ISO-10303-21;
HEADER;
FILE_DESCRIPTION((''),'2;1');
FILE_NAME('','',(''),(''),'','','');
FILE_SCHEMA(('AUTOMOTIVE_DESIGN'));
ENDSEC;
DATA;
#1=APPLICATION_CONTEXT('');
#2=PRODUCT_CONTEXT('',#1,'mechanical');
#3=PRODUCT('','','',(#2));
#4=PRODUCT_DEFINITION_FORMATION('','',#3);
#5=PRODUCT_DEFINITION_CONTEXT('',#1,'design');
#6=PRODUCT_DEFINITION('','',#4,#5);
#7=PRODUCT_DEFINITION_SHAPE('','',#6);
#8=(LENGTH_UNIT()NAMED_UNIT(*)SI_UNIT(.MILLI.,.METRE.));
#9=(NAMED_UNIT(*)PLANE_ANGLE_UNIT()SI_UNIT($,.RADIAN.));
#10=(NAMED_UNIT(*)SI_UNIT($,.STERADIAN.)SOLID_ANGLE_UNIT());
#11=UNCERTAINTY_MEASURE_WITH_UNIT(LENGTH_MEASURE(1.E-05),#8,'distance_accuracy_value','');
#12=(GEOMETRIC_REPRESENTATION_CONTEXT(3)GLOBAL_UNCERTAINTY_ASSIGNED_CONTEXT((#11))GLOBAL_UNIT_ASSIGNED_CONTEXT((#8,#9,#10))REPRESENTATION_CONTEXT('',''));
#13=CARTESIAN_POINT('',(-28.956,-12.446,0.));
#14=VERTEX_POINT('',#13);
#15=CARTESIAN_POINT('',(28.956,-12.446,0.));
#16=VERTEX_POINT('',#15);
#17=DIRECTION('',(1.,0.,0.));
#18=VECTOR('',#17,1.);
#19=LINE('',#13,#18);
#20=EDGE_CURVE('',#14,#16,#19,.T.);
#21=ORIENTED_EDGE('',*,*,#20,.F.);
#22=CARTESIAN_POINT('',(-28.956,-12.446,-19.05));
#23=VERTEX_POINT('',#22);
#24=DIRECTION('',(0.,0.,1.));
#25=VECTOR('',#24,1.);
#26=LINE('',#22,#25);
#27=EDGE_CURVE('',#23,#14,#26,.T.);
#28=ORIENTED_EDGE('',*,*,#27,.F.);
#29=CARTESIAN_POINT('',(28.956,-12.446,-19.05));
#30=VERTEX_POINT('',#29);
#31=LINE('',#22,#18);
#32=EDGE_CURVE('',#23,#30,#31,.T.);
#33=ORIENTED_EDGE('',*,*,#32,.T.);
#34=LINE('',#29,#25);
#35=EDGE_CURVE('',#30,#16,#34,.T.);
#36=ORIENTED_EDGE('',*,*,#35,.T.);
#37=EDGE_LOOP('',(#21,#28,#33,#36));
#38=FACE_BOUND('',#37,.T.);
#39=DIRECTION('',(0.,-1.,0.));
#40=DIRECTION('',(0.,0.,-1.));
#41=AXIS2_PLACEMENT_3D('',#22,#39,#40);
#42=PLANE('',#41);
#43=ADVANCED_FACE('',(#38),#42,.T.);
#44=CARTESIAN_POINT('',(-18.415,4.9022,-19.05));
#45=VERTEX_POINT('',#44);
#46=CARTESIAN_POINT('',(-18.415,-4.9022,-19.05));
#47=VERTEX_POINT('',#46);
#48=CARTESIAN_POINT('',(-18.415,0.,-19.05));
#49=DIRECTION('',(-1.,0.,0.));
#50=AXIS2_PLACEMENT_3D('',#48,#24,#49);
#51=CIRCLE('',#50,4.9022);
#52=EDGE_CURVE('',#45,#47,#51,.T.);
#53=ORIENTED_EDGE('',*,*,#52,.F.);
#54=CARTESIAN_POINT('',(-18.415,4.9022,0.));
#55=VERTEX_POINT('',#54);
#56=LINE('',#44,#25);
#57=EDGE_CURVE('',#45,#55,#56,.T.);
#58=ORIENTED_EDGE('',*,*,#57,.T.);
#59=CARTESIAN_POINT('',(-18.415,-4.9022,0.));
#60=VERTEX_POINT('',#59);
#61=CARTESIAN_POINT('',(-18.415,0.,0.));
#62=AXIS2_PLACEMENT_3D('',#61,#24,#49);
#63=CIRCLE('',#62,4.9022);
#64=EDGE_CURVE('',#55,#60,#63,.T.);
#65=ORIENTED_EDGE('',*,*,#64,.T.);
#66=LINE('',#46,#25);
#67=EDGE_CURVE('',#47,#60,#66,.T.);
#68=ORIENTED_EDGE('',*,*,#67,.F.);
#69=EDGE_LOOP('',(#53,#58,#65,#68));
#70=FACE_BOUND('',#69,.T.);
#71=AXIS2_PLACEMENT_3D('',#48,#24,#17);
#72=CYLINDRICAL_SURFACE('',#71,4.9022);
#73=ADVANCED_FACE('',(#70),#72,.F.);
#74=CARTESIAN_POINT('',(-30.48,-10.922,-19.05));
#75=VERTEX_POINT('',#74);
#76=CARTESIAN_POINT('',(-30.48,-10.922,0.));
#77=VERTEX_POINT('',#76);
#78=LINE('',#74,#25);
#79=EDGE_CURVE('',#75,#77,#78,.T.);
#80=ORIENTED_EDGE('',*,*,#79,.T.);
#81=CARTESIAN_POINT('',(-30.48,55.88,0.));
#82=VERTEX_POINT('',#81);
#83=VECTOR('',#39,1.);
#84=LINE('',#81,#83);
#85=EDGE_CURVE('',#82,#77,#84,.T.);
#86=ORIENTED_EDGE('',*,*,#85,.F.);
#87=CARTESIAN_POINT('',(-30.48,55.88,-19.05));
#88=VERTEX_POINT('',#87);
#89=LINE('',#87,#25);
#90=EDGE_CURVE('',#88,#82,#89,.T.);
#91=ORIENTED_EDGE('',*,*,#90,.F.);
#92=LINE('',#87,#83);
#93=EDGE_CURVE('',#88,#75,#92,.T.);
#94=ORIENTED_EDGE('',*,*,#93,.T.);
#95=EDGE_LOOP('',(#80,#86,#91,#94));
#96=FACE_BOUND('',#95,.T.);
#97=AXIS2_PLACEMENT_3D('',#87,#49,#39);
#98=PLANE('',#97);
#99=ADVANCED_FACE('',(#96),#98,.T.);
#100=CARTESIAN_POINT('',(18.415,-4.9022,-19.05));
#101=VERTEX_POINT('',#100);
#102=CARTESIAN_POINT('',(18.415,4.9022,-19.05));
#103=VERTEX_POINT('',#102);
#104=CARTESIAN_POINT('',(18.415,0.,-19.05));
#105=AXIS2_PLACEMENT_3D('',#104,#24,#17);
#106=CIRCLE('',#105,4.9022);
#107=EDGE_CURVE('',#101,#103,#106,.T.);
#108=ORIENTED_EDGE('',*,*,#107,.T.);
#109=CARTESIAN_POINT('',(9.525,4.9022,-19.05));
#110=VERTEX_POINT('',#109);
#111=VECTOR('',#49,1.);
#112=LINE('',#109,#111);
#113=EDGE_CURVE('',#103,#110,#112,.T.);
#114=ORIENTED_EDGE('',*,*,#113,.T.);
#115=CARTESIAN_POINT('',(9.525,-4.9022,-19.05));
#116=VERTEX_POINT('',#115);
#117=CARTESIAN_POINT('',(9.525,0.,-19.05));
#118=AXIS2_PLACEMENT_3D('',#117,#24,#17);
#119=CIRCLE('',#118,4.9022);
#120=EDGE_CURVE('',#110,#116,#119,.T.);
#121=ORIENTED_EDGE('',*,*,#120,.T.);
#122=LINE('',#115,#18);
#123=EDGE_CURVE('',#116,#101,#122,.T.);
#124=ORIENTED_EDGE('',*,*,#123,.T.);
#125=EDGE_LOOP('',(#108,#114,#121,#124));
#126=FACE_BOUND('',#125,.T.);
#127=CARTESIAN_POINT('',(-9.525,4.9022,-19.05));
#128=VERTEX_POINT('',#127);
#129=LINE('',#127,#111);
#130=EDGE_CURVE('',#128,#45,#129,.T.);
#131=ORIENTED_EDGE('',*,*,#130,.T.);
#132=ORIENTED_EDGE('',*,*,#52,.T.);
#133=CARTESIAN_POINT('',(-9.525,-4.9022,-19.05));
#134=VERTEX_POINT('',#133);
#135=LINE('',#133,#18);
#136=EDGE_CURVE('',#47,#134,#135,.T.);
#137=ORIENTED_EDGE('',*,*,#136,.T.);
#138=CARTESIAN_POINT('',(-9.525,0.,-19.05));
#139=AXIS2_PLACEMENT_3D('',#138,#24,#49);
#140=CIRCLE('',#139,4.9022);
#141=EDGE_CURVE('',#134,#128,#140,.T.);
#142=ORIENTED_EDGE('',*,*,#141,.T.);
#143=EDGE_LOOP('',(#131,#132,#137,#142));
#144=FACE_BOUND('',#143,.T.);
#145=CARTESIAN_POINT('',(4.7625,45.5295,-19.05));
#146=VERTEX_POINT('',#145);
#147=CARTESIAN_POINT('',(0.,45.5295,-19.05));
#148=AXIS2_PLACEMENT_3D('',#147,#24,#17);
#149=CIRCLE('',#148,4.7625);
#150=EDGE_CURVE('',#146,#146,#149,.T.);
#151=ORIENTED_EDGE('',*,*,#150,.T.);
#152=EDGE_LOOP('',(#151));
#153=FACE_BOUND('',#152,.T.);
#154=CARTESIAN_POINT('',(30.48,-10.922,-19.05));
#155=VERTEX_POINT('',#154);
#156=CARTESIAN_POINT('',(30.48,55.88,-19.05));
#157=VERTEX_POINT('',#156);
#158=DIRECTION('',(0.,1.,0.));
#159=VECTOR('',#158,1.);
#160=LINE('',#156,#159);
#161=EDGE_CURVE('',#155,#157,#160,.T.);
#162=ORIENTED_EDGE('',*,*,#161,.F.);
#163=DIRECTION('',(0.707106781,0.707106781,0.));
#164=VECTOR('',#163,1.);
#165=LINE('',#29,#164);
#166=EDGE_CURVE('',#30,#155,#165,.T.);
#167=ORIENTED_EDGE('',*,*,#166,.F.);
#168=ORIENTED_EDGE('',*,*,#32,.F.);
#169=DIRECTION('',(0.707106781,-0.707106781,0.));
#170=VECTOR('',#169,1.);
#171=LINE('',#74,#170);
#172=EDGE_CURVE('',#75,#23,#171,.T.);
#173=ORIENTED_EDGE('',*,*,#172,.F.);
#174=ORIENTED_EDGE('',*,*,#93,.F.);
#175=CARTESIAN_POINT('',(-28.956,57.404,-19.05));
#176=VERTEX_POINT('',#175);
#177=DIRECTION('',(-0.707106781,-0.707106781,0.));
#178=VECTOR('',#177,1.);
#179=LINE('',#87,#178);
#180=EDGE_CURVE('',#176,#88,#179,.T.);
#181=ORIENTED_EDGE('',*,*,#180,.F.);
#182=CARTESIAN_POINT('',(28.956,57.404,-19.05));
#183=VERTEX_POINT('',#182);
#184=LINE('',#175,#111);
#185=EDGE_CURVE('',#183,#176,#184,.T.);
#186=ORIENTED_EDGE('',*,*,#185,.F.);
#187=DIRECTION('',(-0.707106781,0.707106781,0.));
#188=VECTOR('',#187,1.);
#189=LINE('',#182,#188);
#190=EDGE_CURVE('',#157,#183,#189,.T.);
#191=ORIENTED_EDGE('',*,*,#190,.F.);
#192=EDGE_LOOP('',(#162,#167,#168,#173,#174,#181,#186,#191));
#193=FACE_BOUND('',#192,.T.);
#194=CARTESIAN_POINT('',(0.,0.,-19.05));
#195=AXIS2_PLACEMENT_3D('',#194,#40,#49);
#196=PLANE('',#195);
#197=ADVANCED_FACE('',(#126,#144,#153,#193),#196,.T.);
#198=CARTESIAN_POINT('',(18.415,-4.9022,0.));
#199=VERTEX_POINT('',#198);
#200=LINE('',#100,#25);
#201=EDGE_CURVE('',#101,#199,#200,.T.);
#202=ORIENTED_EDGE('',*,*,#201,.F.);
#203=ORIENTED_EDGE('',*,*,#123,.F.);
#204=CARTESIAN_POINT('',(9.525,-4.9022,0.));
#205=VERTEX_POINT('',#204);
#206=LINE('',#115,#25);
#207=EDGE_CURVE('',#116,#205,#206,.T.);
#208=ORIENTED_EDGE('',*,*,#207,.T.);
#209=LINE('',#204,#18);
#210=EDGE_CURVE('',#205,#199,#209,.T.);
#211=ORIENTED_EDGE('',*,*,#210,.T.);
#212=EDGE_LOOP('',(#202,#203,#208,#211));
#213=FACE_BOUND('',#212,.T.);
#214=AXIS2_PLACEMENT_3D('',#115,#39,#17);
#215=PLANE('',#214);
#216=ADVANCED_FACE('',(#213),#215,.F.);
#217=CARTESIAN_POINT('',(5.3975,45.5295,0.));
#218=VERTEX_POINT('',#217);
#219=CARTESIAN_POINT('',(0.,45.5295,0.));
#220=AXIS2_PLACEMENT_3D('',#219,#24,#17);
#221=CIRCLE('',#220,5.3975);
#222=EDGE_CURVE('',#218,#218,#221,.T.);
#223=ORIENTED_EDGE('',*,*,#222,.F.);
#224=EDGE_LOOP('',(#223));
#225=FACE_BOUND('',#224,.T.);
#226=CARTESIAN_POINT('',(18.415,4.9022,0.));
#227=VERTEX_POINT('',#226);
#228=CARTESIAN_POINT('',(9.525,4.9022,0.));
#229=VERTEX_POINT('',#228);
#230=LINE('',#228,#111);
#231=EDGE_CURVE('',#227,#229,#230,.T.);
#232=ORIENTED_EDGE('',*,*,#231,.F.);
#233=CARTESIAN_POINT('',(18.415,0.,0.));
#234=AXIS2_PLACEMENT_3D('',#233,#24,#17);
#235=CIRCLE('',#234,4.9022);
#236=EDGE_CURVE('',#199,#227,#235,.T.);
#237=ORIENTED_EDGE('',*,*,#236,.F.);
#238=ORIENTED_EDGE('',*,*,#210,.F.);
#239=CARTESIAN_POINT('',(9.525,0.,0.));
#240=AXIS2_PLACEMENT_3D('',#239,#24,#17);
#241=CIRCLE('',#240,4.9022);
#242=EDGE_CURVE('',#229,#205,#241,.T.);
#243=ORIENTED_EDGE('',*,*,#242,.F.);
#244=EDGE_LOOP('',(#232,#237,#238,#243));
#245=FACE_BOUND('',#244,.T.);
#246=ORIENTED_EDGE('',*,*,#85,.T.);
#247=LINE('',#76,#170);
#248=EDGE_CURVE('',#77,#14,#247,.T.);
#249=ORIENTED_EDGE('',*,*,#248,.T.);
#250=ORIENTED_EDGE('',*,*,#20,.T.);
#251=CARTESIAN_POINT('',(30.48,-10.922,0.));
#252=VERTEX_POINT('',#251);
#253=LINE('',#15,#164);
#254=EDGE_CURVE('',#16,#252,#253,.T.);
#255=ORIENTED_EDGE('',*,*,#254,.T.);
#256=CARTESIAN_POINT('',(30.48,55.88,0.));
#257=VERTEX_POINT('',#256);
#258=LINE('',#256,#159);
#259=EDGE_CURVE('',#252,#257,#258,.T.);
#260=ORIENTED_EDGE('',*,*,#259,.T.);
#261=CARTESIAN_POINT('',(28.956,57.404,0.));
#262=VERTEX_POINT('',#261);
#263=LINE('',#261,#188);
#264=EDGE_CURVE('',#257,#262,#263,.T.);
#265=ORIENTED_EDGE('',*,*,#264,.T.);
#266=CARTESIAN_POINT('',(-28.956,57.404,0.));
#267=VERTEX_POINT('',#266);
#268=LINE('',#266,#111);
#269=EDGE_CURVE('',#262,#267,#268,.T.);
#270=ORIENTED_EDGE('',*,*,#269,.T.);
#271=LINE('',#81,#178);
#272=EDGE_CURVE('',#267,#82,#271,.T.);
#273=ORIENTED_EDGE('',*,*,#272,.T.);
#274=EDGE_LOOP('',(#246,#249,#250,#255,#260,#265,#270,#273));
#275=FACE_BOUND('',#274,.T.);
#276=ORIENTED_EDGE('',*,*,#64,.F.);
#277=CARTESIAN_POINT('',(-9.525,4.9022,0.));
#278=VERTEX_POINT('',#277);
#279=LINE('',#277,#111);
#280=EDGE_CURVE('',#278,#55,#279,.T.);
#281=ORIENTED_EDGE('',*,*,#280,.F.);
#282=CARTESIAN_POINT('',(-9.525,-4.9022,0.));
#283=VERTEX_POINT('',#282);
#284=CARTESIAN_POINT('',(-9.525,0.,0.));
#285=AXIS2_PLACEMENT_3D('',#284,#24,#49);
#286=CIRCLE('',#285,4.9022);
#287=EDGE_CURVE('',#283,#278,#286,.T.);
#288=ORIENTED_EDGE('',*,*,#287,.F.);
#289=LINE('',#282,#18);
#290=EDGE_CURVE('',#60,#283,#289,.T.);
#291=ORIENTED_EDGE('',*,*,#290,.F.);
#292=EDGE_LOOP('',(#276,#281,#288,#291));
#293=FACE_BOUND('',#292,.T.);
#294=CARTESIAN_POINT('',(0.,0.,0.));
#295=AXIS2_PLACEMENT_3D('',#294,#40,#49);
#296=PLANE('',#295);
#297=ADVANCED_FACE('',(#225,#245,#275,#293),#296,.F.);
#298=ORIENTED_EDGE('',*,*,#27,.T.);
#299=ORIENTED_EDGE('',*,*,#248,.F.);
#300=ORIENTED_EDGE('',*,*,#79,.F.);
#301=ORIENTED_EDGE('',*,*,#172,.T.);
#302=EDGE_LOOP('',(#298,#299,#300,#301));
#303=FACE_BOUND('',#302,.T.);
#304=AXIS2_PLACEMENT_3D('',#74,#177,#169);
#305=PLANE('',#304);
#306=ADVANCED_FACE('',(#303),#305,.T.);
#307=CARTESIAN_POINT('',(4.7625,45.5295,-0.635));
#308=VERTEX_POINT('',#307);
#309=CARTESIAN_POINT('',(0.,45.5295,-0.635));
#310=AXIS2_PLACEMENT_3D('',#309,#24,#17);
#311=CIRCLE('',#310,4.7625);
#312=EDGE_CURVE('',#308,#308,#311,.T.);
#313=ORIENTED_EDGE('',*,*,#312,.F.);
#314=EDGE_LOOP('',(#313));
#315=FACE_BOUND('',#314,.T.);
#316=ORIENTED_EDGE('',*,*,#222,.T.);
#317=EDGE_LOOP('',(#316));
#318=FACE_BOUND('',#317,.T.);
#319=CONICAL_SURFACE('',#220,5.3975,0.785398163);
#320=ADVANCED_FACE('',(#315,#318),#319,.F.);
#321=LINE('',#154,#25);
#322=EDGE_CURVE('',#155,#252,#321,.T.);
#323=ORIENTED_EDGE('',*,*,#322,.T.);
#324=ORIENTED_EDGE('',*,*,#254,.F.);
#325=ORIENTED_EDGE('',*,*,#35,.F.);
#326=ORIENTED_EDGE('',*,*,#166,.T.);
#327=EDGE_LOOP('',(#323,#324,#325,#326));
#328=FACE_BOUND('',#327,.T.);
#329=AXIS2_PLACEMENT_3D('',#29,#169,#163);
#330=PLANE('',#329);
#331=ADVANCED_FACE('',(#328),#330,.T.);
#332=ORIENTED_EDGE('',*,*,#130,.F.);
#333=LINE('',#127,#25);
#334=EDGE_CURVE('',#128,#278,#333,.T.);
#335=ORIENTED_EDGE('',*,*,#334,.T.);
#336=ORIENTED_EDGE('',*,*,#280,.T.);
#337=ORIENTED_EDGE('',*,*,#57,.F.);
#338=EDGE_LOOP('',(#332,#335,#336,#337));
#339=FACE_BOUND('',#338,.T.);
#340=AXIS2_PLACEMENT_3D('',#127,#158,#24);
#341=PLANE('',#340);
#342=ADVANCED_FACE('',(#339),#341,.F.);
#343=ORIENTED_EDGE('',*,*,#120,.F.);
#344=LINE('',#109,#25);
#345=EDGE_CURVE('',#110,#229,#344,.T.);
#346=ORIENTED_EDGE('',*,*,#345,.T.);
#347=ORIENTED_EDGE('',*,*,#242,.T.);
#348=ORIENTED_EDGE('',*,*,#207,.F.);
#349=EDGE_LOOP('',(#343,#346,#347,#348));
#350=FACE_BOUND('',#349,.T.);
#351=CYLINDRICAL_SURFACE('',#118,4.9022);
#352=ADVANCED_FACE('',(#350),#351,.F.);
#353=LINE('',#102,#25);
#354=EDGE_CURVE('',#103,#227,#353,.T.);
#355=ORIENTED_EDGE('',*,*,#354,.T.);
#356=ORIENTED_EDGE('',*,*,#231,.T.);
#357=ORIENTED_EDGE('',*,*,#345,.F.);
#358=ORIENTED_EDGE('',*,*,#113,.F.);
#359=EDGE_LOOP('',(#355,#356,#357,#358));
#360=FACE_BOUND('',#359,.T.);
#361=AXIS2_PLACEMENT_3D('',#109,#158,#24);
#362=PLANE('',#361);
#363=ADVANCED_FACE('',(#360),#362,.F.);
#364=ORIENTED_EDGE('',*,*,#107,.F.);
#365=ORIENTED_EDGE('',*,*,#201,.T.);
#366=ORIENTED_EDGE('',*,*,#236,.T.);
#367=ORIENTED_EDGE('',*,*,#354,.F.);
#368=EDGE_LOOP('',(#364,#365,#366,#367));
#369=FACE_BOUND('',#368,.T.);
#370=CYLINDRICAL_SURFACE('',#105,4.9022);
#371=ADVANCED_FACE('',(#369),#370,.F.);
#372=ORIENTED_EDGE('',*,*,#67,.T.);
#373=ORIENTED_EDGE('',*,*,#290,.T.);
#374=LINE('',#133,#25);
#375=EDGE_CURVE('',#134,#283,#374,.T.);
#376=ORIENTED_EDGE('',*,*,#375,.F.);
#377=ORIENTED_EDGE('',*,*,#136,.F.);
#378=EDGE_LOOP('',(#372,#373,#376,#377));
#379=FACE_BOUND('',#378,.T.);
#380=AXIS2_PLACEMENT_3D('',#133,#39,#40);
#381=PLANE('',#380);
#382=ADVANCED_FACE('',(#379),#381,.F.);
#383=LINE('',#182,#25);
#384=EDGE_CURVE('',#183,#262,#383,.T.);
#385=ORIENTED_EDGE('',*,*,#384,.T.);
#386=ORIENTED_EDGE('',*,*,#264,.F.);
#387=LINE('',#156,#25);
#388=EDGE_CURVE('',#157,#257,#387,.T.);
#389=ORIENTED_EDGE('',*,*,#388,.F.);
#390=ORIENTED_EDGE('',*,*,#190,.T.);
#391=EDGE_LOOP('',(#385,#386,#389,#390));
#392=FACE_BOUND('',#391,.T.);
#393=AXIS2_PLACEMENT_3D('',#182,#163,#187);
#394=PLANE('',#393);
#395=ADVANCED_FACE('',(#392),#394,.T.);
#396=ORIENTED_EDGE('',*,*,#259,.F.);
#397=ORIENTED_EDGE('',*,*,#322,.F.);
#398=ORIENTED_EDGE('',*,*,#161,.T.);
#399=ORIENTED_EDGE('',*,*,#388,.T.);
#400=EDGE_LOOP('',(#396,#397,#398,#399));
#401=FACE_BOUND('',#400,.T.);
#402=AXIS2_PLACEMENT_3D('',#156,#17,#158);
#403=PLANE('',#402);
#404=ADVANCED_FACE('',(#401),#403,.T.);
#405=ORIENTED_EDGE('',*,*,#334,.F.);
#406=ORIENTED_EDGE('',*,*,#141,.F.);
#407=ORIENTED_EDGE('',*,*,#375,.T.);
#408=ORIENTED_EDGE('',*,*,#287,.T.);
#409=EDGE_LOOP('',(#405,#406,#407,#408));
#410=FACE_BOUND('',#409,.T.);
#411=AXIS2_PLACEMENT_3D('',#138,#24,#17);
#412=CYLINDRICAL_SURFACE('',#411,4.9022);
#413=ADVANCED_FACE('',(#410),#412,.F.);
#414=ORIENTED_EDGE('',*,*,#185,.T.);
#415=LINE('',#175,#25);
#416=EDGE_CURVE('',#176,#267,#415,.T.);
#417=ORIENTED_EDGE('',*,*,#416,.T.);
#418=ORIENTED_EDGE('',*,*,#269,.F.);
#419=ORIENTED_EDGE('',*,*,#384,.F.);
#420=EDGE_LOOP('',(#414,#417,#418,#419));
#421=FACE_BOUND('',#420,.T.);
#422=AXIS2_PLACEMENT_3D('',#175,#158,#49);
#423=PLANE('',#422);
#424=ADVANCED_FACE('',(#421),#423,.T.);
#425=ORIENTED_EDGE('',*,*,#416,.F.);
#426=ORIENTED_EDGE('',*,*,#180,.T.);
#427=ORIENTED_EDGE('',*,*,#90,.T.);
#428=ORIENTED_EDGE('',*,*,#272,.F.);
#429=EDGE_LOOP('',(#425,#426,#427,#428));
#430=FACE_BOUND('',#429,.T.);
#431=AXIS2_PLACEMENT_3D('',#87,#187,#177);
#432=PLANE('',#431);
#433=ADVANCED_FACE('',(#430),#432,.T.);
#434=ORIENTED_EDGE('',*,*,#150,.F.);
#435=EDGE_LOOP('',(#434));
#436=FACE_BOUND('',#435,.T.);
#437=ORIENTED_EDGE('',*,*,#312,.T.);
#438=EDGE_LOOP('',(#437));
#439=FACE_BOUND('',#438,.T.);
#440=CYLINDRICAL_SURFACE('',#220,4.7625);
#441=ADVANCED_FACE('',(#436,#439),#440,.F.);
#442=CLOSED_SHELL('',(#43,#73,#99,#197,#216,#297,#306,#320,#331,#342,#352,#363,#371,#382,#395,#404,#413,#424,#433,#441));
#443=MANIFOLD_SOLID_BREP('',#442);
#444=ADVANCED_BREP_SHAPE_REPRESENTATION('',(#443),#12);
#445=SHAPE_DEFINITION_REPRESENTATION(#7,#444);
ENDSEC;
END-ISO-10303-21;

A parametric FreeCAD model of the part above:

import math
import FreeCAD as App
import Part
import Sketcher
Q = App.Units.Quantity


def add_polygon(sketch, points):
    """Adds a closed chain of lines whose ends are joined by coincident constraints."""
    first, n = sketch.GeometryCount, len(points)
    for a, b in zip(points, points[1:] + points[:1]):
        sketch.addGeometry(Part.LineSegment(App.Vector(*a, 0), App.Vector(*b, 0)), False)
    for i in range(n):
        sketch.addConstraint(Sketcher.Constraint("Coincident", first + i, 2, first + (i + 1) % n, 1))

doc = App.newDocument("Part")
body = doc.addObject("PartDesign::Body", "Body")

sketch1 = body.newObject("Sketcher::SketchObject", "Sketch")
sketch1.AttachmentSupport = (doc.getObject("XY_Plane"), [""])
sketch1.MapMode = "FlatFace"
add_polygon(sketch1, [(29, 57.4), (-29, 57.4), (-30.5, 55.9), (-30.5, -10.9), (-29, -12.4), (29, -12.4), (30.5, -10.9), (30.5, 55.9)])
sketch1.addGeometry(Part.LineSegment(App.Vector(9.5, 4.9, 0), App.Vector(18.4, 4.9, 0)), False)
sketch1.addGeometry(Part.ArcOfCircle(Part.Circle(App.Vector(18.4, 0, 0), App.Vector(0, 0, 1), 4.9), math.radians(-90), math.radians(90)), False)
sketch1.addGeometry(Part.LineSegment(App.Vector(18.4, -4.9, 0), App.Vector(9.5, -4.9, 0)), False)
sketch1.addGeometry(Part.ArcOfCircle(Part.Circle(App.Vector(9.5, 0, 0), App.Vector(0, 0, 1), 4.9), math.radians(90), math.radians(270)), False)
sketch1.addGeometry(Part.ArcOfCircle(Part.Circle(App.Vector(-9.5, 0, 0), App.Vector(0, 0, 1), 4.9), math.radians(-90), math.radians(90)), False)
sketch1.addGeometry(Part.LineSegment(App.Vector(-9.5, -4.9, 0), App.Vector(-18.4, -4.9, 0)), False)
sketch1.addGeometry(Part.ArcOfCircle(Part.Circle(App.Vector(-18.4, 0, 0), App.Vector(0, 0, 1), 4.9), math.radians(90), math.radians(270)), False)
sketch1.addGeometry(Part.LineSegment(App.Vector(-18.4, 4.9, 0), App.Vector(-9.5, 4.9, 0)), False)
sketch1.addConstraint([
    Sketcher.Constraint("Tangent", 8, 2, 9, 2),
    Sketcher.Constraint("Tangent", 9, 1, 10, 1),
    Sketcher.Constraint("Tangent", 10, 2, 11, 2),
    Sketcher.Constraint("Tangent", 11, 1, 8, 1),
    Sketcher.Constraint("Tangent", 12, 1, 13, 1),
    Sketcher.Constraint("Tangent", 13, 2, 14, 2),
    Sketcher.Constraint("Tangent", 14, 1, 15, 1),
    Sketcher.Constraint("Tangent", 15, 2, 12, 2),
    Sketcher.Constraint("Horizontal", 0),
    Sketcher.Constraint("Vertical", 2),
    Sketcher.Constraint("Horizontal", 4),
    Sketcher.Constraint("Vertical", 6),
    Sketcher.Constraint("Horizontal", 8),
    Sketcher.Constraint("Horizontal", 10),
    Sketcher.Constraint("Horizontal", 13),
    Sketcher.Constraint("Horizontal", 15),
    Sketcher.Constraint("Equal", 11, 12),
    Sketcher.Constraint("Symmetric", 11, 3, 12, 3, -1, 1),
    Sketcher.Constraint("Symmetric", 9, 3, 14, 3, -2),
    Sketcher.Constraint("Symmetric", 2, 2, 5, 2, -2),
    Sketcher.Constraint("Perpendicular", 1, 3),
    Sketcher.Constraint("Perpendicular", 3, 5),
    Sketcher.Constraint("Perpendicular", 5, 7),
    Sketcher.Constraint("Horizontal", 1, 2, 6, 2),
    Sketcher.Constraint("Vertical", 0, 2, 3, 2),
    Sketcher.Constraint("Vertical", 4, 2, 7, 2),
    Sketcher.Constraint("Radius", 9, Q("0.193 in")),
    Sketcher.Constraint("DistanceX", 0, 2, 0, 1, Q("2.28 in")),
    Sketcher.Constraint("DistanceX", 8, 1, 8, 2, Q("0.35 in")),
    Sketcher.Constraint("DistanceY", 2, 2, 2, 1, Q("2.63 in")),
    Sketcher.Constraint("DistanceX", 1, 2, -1, 1, Q("1.2 in")),
    Sketcher.Constraint("DistanceY", -1, 1, 1, 2, Q("2.2 in")),
    Sketcher.Constraint("DistanceX", 12, 3, 9, 3, Q("1.1 in")),
])
pad1 = body.newObject("PartDesign::Pad", "Pad")
pad1.Profile = sketch1
pad1.Length = Q("0.75 in")
pad1.Reversed = True

sketch2 = body.newObject("Sketcher::SketchObject", "Sketch001")
sketch2.AttachmentSupport = (doc.getObject("XY_Plane"), [""])
sketch2.MapMode = "FlatFace"
sketch2.addGeometry(Part.Circle(App.Vector(0, 45.5, 0), App.Vector(0, 0, 1), 4.8), False)
sketch2.addConstraint([
    Sketcher.Constraint("PointOnObject", 0, 3, -2),
    Sketcher.Constraint("Diameter", 0, Q("0.375 in")),
    Sketcher.Constraint("DistanceY", -1, 1, 0, 3, Q("1.7925 in")),
])
doc.recompute()
hole = body.newObject("PartDesign::Hole", "Hole")
hole.Profile = sketch2
hole.ThreadType = "None"
hole.Diameter = Q("0.375 in")
hole.DepthType = "ThroughAll"
hole.HoleCutType = "Countersink"
hole.HoleCutDiameter = Q("0.425 in")
hole.HoleCutCountersinkAngle = 90

doc.recompute()
